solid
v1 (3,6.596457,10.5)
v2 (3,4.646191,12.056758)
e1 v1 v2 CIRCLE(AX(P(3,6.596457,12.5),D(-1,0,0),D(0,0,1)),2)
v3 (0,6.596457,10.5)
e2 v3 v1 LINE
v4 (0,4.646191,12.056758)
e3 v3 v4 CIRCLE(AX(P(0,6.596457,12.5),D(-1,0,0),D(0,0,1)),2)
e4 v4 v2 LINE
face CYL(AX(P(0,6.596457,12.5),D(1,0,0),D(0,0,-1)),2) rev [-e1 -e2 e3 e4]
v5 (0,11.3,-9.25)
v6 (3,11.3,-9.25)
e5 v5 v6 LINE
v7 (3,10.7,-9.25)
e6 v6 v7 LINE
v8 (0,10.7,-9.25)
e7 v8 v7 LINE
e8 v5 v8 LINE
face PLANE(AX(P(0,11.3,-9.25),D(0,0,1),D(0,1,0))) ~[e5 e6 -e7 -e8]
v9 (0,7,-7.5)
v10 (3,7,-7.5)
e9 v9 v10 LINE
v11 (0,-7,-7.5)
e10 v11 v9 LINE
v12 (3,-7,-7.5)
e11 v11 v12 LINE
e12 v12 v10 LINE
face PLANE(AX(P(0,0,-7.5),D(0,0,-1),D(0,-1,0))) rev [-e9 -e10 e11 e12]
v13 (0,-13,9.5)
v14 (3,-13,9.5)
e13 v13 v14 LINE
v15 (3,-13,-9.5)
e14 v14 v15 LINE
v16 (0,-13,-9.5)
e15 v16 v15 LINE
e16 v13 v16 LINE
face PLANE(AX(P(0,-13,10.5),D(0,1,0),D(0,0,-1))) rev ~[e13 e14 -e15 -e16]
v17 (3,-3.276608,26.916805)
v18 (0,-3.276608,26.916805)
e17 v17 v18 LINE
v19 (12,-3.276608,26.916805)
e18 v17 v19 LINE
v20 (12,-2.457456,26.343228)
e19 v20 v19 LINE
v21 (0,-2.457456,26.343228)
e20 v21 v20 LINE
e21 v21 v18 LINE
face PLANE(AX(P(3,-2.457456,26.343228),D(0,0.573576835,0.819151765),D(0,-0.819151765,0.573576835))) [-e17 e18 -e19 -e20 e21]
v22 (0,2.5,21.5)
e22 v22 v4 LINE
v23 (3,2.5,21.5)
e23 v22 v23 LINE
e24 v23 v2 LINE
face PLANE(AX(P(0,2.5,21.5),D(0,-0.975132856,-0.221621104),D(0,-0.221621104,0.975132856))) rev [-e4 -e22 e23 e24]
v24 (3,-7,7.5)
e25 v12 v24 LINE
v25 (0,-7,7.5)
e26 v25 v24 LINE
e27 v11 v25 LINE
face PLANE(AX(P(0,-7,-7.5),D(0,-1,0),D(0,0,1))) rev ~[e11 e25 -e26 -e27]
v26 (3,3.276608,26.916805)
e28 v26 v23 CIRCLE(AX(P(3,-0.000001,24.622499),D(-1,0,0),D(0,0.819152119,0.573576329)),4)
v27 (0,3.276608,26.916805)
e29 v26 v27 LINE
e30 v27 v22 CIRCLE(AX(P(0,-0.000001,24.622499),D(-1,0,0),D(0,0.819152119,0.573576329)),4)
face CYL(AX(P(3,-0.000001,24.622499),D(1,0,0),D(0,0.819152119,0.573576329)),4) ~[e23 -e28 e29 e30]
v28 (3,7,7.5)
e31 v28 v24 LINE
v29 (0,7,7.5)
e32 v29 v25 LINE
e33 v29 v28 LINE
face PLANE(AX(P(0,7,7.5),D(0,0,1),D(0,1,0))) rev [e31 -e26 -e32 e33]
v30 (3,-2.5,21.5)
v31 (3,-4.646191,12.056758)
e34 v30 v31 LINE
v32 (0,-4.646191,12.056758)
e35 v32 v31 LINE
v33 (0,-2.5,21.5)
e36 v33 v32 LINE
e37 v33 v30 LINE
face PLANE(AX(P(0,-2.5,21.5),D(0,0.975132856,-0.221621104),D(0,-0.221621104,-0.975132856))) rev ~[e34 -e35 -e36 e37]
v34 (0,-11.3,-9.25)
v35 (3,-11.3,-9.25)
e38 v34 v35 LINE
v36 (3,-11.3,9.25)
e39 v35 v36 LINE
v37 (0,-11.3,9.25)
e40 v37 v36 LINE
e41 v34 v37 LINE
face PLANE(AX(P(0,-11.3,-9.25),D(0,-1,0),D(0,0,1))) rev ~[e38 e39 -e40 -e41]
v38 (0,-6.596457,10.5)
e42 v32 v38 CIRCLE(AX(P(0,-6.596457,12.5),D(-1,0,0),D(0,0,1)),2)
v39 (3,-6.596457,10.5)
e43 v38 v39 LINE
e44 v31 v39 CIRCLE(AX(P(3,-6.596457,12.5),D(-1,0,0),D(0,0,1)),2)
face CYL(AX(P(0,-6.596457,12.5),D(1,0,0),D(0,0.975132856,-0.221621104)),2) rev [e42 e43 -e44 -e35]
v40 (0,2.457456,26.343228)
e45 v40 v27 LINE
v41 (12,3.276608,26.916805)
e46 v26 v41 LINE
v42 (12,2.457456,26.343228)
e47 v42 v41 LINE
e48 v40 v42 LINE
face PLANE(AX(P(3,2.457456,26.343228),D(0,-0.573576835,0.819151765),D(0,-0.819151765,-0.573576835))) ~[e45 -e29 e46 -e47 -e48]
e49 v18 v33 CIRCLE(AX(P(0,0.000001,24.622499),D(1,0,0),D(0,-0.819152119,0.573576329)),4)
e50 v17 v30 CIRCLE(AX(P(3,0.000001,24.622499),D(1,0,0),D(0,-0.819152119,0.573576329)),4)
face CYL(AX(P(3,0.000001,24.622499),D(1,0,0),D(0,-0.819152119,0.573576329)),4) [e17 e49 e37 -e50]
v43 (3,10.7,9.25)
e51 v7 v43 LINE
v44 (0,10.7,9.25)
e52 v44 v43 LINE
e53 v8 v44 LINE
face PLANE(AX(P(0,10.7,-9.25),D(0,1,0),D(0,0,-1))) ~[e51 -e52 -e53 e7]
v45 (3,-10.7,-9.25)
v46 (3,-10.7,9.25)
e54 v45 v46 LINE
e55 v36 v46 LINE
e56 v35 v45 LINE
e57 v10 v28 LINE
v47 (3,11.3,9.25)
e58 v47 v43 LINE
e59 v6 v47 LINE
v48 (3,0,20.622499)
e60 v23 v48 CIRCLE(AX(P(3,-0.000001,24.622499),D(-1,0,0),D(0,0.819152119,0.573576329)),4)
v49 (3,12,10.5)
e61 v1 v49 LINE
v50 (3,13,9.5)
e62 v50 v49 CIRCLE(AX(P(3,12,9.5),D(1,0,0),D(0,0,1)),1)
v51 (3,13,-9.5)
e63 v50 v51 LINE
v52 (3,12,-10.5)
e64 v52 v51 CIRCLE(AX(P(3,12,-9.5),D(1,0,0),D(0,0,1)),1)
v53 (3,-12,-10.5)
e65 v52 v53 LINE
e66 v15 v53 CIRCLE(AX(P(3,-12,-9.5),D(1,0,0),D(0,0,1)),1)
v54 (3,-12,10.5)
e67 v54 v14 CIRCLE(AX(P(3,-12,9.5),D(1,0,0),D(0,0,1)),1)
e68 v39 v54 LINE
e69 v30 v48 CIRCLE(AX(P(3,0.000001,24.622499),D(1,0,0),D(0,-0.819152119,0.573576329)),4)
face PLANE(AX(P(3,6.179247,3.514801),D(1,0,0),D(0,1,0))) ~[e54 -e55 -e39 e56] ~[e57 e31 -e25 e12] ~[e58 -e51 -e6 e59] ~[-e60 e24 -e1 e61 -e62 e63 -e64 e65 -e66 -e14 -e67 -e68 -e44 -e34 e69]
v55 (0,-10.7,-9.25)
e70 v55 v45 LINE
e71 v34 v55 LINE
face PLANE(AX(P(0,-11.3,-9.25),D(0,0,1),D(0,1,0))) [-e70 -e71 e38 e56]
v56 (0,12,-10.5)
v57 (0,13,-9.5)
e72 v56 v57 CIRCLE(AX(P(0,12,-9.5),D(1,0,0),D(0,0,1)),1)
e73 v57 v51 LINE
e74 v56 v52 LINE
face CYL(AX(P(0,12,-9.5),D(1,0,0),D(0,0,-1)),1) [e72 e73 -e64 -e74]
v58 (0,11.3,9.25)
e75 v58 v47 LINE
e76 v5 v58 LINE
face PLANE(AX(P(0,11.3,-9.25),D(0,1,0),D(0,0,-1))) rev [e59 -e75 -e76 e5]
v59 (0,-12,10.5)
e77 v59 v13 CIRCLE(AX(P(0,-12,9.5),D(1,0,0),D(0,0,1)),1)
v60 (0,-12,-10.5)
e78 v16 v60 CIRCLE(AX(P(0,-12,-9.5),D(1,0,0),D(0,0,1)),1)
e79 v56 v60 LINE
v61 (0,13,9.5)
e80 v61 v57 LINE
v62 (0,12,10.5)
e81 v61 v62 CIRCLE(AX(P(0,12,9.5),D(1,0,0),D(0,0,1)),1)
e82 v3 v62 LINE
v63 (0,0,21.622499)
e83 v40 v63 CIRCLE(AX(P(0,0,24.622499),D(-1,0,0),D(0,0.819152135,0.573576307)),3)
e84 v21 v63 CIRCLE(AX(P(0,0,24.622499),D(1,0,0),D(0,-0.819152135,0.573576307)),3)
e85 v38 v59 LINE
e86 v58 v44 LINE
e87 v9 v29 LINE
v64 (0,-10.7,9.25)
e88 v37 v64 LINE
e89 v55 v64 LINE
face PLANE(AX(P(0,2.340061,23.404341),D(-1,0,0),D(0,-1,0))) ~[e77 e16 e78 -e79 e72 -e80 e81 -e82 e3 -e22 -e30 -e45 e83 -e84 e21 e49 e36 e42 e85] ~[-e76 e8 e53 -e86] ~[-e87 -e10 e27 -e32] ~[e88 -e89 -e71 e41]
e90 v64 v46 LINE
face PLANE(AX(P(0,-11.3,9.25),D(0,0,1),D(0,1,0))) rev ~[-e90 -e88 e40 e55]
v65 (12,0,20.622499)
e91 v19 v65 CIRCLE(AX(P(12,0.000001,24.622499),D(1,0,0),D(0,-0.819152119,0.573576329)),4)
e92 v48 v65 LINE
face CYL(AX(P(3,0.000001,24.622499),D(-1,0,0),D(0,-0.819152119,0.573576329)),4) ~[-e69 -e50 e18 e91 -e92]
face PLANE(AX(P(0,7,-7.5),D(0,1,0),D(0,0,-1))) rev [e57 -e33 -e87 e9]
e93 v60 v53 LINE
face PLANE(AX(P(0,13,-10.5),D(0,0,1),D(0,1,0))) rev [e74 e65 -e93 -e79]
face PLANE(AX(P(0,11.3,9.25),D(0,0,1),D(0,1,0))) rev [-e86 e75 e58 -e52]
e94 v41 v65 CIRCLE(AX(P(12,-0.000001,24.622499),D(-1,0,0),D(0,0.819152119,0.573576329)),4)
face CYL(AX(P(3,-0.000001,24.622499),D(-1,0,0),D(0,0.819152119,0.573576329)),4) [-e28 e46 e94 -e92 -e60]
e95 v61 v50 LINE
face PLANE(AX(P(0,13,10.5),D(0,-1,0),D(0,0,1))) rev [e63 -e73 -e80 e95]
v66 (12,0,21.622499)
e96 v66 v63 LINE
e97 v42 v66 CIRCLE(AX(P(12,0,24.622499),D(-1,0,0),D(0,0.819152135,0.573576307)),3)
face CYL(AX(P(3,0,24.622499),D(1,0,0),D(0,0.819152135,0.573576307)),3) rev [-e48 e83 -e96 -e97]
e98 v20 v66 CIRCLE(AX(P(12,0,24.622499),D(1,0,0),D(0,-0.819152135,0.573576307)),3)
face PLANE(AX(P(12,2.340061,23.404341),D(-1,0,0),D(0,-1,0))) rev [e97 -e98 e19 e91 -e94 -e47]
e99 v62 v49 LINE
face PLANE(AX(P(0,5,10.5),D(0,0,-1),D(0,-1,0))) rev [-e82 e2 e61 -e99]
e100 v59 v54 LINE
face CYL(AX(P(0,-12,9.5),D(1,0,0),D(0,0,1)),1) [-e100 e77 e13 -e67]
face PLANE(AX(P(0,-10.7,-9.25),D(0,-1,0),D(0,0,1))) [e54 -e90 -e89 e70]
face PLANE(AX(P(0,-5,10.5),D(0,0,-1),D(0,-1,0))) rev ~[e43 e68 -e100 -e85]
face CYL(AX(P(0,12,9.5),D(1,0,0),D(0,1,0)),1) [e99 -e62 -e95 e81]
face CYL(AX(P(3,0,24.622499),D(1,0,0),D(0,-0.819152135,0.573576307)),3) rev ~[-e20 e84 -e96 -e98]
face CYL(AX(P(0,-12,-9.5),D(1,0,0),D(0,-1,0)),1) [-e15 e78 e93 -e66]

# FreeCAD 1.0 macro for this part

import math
import FreeCAD as App
import Part
import Sketcher

V = App.Vector
Q = App.Units.Quantity


def edges_at(feature, points):
    """Names of the edges that pass closest to the given points."""
    edges = feature.Shape.Edges
    near = lambda p: min(range(len(edges)), key=lambda i: edges[i].distToShape(Part.Vertex(*p))[0])
    return sorted({f"Edge{near(p) + 1}" for p in points})

doc = App.newDocument("Part")
body = doc.addObject("PartDesign::Body", "Body")

# Sketch on YZ plane
sketch1 = doc.addObject("Sketcher::SketchObject", "Sketch")
body.addObject(sketch1)
sketch1.AttachmentSupport = (doc.YZ_Plane, [""])
sketch1.MapMode = "FlatFace"
sketch1.addGeometry([
    Part.LineSegment(V(-13, 10.5, 0), V(-13, -10.5, 0)),  # 0
    Part.LineSegment(V(-13, -10.5, 0), V(0, -10.5, 0)),  # 1
    Part.LineSegment(V(0, -10.5, 0), V(0, -7.5, 0)),  # 2
    Part.LineSegment(V(0, -7.5, 0), V(-7, -7.5, 0)),  # 3
    Part.LineSegment(V(-7, -7.5, 0), V(-7, 7.5, 0)),  # 4
    Part.LineSegment(V(-7, 7.5, 0), V(0, 7.5, 0)),  # 5
    Part.LineSegment(V(0, 7.5, 0), V(0, 21.5, 0)),  # 6
    Part.LineSegment(V(0, 21.5, 0), V(-2.5, 21.5, 0)),  # 7
    Part.LineSegment(V(-2.5, 21.5, 0), V(-5, 10.5, 0)),  # 8
    Part.LineSegment(V(-5, 10.5, 0), V(-13, 10.5, 0)),  # 9
    Part.LineSegment(V(-10.7, -9.25, 0), V(-11.3, -9.25, 0)),  # 10
    Part.LineSegment(V(-11.3, -9.25, 0), V(-11.3, 9.25, 0)),  # 11
    Part.LineSegment(V(-11.3, 9.25, 0), V(-10.7, 9.25, 0)),  # 12
    Part.LineSegment(V(-10.7, 9.25, 0), V(-10.7, -9.25, 0)),  # 13
], False)
sketch1.addConstraint([
    Sketcher.Constraint("Coincident", 0, 2, 1, 1),
    Sketcher.Constraint("Coincident", 1, 2, 2, 1),
    Sketcher.Constraint("Coincident", 2, 2, 3, 1),
    Sketcher.Constraint("Coincident", 3, 2, 4, 1),
    Sketcher.Constraint("Coincident", 4, 2, 5, 1),
    Sketcher.Constraint("Coincident", 5, 2, 6, 1),
    Sketcher.Constraint("Coincident", 6, 2, 7, 1),
    Sketcher.Constraint("Coincident", 7, 2, 8, 1),
    Sketcher.Constraint("Coincident", 8, 2, 9, 1),
    Sketcher.Constraint("Coincident", 9, 2, 0, 1),
    Sketcher.Constraint("Coincident", 10, 2, 11, 1),
    Sketcher.Constraint("Coincident", 11, 2, 12, 1),
    Sketcher.Constraint("Coincident", 12, 2, 13, 1),
    Sketcher.Constraint("Coincident", 13, 2, 10, 1),
    Sketcher.Constraint("Vertical", 0),
    Sketcher.Constraint("Horizontal", 1),
    Sketcher.Constraint("Vertical", 2),
    Sketcher.Constraint("Horizontal", 3),
    Sketcher.Constraint("Vertical", 4),
    Sketcher.Constraint("Horizontal", 5),
    Sketcher.Constraint("Vertical", 6),
    Sketcher.Constraint("Horizontal", 7),
    Sketcher.Constraint("Horizontal", 9),
    Sketcher.Constraint("Horizontal", 10),
    Sketcher.Constraint("Vertical", 11),
    Sketcher.Constraint("Horizontal", 12),
    Sketcher.Constraint("Vertical", 13),
    Sketcher.Constraint("Symmetric", 2, 2, 5, 2, -1, 1),
    Sketcher.Constraint("PointOnObject", 1, 2, -2),
    Sketcher.Constraint("DistanceX", 1, 1, 1, 2, Q("13 mm")),
    Sketcher.Constraint("DistanceX", 3, 2, 3, 1, Q("7 mm")),
    Sketcher.Constraint("DistanceX", 9, 2, 9, 1, Q("8 mm")),
    Sketcher.Constraint("DistanceY", 0, 2, 0, 1, Q("21 mm")),
    Sketcher.Constraint("DistanceY", 2, 1, 2, 2, Q("3 mm")),
    Sketcher.Constraint("DistanceY", 4, 1, 4, 2, Q("15 mm")),
    Sketcher.Constraint("DistanceY", 6, 1, 6, 2, Q("14 mm")),
    Sketcher.Constraint("DistanceX", 7, 2, 7, 1, Q("2.5 mm")),
    Sketcher.Constraint("DistanceX", 10, 2, 10, 1, Q("0.6 mm")),
    Sketcher.Constraint("DistanceY", 11, 1, 11, 2, Q("18.5 mm")),
    Sketcher.Constraint("DistanceX", 10, 2, -1, 1, Q("11.3 mm")),
    Sketcher.Constraint("DistanceY", 10, 2, -1, 1, Q("9.25 mm")),
])
pad1 = doc.addObject("PartDesign::Pad", "Pad")
body.addObject(pad1)
pad1.Profile = sketch1
pad1.Length = 3

# Sketch on YZ plane
sketch2 = doc.addObject("Sketcher::SketchObject", "Sketch001")
body.addObject(sketch2)
sketch2.AttachmentSupport = (doc.YZ_Plane, [""])
sketch2.MapMode = "FlatFace"
sketch2.AttachmentOffset = App.Placement(V(0, 0, 3), App.Rotation())
sketch2.addGeometry([
    Part.ArcOfCircle(Part.Circle(V(0, 24.622499, 0), V(0, 0, 1), 3), math.radians(145.000009), math.radians(269.999991)),
    Part.LineSegment(V(-2.457456, 26.343228, 0), V(-3.276608, 26.916805, 0)),
    Part.ArcOfCircle(Part.Circle(V(0.000001, 24.622499, 0), V(0, 0, 1), 4), math.radians(145.000007), math.radians(269.999988)),
    Part.LineSegment(V(0, 20.622499, 0), V(0, 21.622499, 0)),
], False)
sketch2.addConstraint([
    Sketcher.Constraint("Coincident", 0, 1, 1, 1),
    Sketcher.Constraint("Coincident", 1, 2, 2, 1),
    Sketcher.Constraint("Coincident", 2, 2, 3, 1),
    Sketcher.Constraint("Coincident", 3, 2, 0, 2),
    Sketcher.Constraint("Vertical", 3),
    Sketcher.Constraint("Coincident", 2, 3, 0, 3),
    Sketcher.Constraint("PointOnObject", 0, 3, -2),
    Sketcher.Constraint("PointOnObject", 2, 2, -2),
    Sketcher.Constraint("Radius", 0, Q("3 mm")),
    Sketcher.Constraint("Radius", 2, Q("4 mm")),
    Sketcher.Constraint("DistanceY", -1, 1, 0, 3, Q("24.622499 mm")),
    Sketcher.Constraint("DistanceY", -1, 1, 0, 1, Q("26.343228 mm")),
    Sketcher.Constraint("DistanceX", 1, 2, -1, 1, Q("3.276608 mm")),
])
pad2 = doc.addObject("PartDesign::Pad", "Pad001")
body.addObject(pad2)
pad2.Profile = sketch2
pad2.Type = "TwoLengths"
pad2.Length = 9
pad2.Length2 = 3
body2 = doc.addObject("PartDesign::Body", "Body001")
doc.recompute()

body2.BaseFeature = body
doc.recompute()

mirroring = doc.addObject("Part::Mirroring", "Mirroring")
mirroring.Source = body
mirroring.Base = V(0, 0, 0)
mirroring.Normal = V(0, -1, 0)
body3 = doc.addObject("PartDesign::Body", "Body002")
body3.BaseFeature = mirroring
boolean = doc.addObject("PartDesign::Boolean", "Boolean")
body2.addObject(boolean)
boolean.Type = "Fuse"
boolean.addObjects([body3])
doc.recompute()

fillet = doc.addObject("PartDesign::Fillet", "Fillet")
body2.addObject(fillet)
fillet.Base = (boolean, edges_at(boolean, [
    (1.5, 13, 10.5),
    (1.5, 13, -10.5),
    (1.5, -13, -10.5),
    (1.5, -13, 10.5),
]))
fillet.Radius = 1
doc.recompute()

fillet2 = doc.addObject("PartDesign::Fillet", "Fillet001")
body2.addObject(fillet2)
fillet2.Base = (fillet, edges_at(fillet, [(1.5, -5, 10.5), (1.5, 5, 10.5)]))
fillet2.Radius = 2
mirroring.Visibility = False

doc.recompute()
